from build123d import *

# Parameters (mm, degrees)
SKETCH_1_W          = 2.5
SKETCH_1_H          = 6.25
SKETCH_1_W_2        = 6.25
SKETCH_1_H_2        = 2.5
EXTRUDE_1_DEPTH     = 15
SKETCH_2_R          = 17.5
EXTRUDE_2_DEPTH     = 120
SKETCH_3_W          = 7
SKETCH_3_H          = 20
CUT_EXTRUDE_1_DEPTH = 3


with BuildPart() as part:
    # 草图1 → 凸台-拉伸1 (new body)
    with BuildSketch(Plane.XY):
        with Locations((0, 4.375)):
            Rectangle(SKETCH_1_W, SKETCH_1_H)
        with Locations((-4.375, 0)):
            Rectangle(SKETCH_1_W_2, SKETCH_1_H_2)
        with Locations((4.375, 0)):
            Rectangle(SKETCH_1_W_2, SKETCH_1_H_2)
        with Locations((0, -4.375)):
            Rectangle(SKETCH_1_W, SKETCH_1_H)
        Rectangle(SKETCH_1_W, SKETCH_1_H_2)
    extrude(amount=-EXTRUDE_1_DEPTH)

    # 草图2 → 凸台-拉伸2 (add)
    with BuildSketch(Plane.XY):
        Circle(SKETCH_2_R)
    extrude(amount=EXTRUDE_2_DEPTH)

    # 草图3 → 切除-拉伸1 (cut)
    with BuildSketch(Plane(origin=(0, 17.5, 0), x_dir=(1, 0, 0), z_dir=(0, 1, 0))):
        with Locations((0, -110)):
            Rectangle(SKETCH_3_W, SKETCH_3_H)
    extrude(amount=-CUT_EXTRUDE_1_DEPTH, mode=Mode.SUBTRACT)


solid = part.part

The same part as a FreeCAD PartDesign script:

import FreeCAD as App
import Part
import Sketcher
from FreeCAD import Vector
Q = App.Units.Quantity


def add_polygon(sketch, points):
    """Adds a closed chain of lines whose ends are joined by coincident constraints."""
    first, n = sketch.GeometryCount, len(points)
    for a, b in zip(points, points[1:] + points[:1]):
        sketch.addGeometry(Part.LineSegment(App.Vector(*a, 0), App.Vector(*b, 0)), False)
    for i in range(n):
        sketch.addConstraint(Sketcher.Constraint("Coincident", first + i, 2, first + (i + 1) % n, 1))

doc = App.newDocument("Part")
body = doc.addObject("PartDesign::Body", "Body")

# Sketch on XY plane
sketch1 = body.newObject("Sketcher::SketchObject", "Sketch")
sketch1.AttachmentSupport = (doc.getObject("XY_Plane"), [""])
sketch1.MapMode = "FlatFace"
add_polygon(sketch1, [(-1.2, 7.5), (-1.2, 1.2), (-7.5, 1.2), (-7.5, -1.2), (-1.2, -1.2), (-1.2, -7.5), (1.2, -7.5), (1.2, -1.2), (7.5, -1.2), (7.5, 1.2), (1.2, 1.2), (1.2, 7.5)])  # lines 0-11
sketch1.addConstraint([
    Sketcher.Constraint("Vertical", 0),
    Sketcher.Constraint("Horizontal", 1),
    Sketcher.Constraint("Vertical", 2),
    Sketcher.Constraint("Horizontal", 3),
    Sketcher.Constraint("Vertical", 4),
    Sketcher.Constraint("Horizontal", 5),
    Sketcher.Constraint("Vertical", 6),
    Sketcher.Constraint("Horizontal", 7),
    Sketcher.Constraint("Vertical", 8),
    Sketcher.Constraint("Horizontal", 9),
    Sketcher.Constraint("Vertical", 10),
    Sketcher.Constraint("Horizontal", 11),
    Sketcher.Constraint("Symmetric", 0, 2, 6, 2, -1, 1),
    Sketcher.Constraint("Symmetric", 2, 2, 8, 2, -1, 1),
    Sketcher.Constraint("Symmetric", 4, 2, 10, 2, -1, 1),
    Sketcher.Constraint("Symmetric", 3, 2, 6, 2, -2),
    Sketcher.Constraint("Equal", 9, 0),
    Sketcher.Constraint("Equal", 11, 2),
    Sketcher.Constraint("DistanceX", 5, 1, 5, 2, Q("2.5 mm")),
    Sketcher.Constraint("DistanceX", 1, 2, 1, 1, Q("6.25 mm")),
])
pad1 = body.newObject("PartDesign::Pad", "Pad")
pad1.Profile = sketch1
pad1.Length = 15
pad1.Reversed = True

# Sketch on XY plane
sketch2 = body.newObject("Sketcher::SketchObject", "Sketch001")
sketch2.AttachmentSupport = (doc.getObject("XY_Plane"), [""])
sketch2.MapMode = "FlatFace"
sketch2.addGeometry(Part.Circle(Vector(0, 0, 0), Vector(0, 0, 1), 18), False)
sketch2.addConstraint([
    Sketcher.Constraint("Coincident", 0, 3, -1, 1),
    Sketcher.Constraint("Diameter", 0, Q("35 mm")),
])
pad2 = body.newObject("PartDesign::Pad", "Pad001")
pad2.Profile = sketch2
pad2.Length = 120

# Sketch on XZ plane
sketch3 = body.newObject("Sketcher::SketchObject", "Sketch002")
sketch3.AttachmentSupport = (doc.getObject("XZ_Plane"), [""])
sketch3.MapMode = "FlatFace"
sketch3.AttachmentOffset = App.Placement(Vector(0, 0, -17.5), App.Rotation())
add_polygon(sketch3, [(-4, 100), (-4, 120), (4, 120), (4, 100)])  # lines 0-3
sketch3.addConstraint([
    Sketcher.Constraint("Vertical", 0),
    Sketcher.Constraint("Horizontal", 1),
    Sketcher.Constraint("Vertical", 2),
    Sketcher.Constraint("Horizontal", 3),
    Sketcher.Constraint("DistanceX", 1, 1, 1, 2, Q("7 mm")),
    Sketcher.Constraint("DistanceY", 0, 1, 0, 2, Q("20 mm")),
    Sketcher.Constraint("DistanceY", -1, 1, 0, 2, Q("120 mm")),
    Sketcher.Constraint("DistanceX", 0, 2, -1, 1, Q("3.5 mm")),
])
pocket1 = body.newObject("PartDesign::Pocket", "Pocket")
pocket1.Profile = sketch3
pocket1.Length = 3
pocket1.Reversed = True

doc.recompute()
